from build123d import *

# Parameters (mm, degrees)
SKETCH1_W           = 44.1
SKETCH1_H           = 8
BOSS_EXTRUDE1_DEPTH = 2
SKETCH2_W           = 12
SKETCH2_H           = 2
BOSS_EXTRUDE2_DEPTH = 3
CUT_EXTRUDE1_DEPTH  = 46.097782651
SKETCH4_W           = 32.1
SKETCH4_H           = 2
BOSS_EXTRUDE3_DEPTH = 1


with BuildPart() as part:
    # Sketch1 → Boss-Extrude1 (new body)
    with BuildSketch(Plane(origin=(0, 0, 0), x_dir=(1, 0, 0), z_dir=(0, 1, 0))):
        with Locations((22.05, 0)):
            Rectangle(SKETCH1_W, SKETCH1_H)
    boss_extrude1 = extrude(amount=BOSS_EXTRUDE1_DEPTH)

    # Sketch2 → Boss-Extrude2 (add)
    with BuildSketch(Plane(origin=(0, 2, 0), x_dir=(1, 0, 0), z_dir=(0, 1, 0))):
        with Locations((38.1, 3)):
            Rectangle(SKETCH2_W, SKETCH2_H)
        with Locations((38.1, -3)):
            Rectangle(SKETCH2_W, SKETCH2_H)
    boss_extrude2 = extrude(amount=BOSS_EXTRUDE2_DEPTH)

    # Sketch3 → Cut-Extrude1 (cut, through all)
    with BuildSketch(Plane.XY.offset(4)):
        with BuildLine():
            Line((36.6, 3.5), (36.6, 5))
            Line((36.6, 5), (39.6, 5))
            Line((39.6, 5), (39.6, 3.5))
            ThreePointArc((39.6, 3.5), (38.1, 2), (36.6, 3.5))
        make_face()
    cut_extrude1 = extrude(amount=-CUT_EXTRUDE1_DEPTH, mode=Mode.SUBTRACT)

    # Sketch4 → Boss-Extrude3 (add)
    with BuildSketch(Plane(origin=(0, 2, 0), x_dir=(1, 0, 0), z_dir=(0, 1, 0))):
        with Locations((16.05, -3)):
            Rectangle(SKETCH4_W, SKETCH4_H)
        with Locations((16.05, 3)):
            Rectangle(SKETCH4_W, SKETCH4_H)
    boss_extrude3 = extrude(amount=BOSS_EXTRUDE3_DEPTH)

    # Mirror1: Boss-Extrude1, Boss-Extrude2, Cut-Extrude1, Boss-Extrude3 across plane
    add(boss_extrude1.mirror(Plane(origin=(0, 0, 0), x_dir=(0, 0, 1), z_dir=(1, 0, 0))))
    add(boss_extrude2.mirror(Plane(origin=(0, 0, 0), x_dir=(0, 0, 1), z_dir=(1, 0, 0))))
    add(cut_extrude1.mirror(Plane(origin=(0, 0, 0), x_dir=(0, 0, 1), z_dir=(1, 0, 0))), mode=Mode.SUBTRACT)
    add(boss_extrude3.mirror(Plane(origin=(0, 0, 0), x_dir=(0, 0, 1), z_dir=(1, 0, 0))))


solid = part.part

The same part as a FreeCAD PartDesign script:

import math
import FreeCAD as App
import Part
import Sketcher
from FreeCAD import Vector
Q = App.Units.Quantity

doc = App.newDocument("Part")
body = doc.addObject("PartDesign::Body", "Body")

# Sketch on XZ plane
sketch1 = body.newObject("Sketcher::SketchObject", "Sketch")
sketch1.AttachmentSupport = (doc.getObject("XZ_Plane"), [""])
sketch1.MapMode = "FlatFace"
sketch1.addGeometry([
    Part.LineSegment(Vector(0, -4, 0), Vector(0, 4, 0)),
    Part.LineSegment(Vector(0, 4, 0), Vector(44.1, 4, 0)),
    Part.LineSegment(Vector(44.1, 4, 0), Vector(44.1, -4, 0)),
    Part.LineSegment(Vector(44.1, -4, 0), Vector(0, -4, 0)),
], False)
sketch1.addConstraint([
    Sketcher.Constraint("Coincident", 0, 2, 1, 1),
    Sketcher.Constraint("Coincident", 1, 2, 2, 1),
    Sketcher.Constraint("Coincident", 2, 2, 3, 1),
    Sketcher.Constraint("Coincident", 3, 2, 0, 1),
    Sketcher.Constraint("Vertical", 0),
    Sketcher.Constraint("Horizontal", 1),
    Sketcher.Constraint("Vertical", 2),
    Sketcher.Constraint("Horizontal", 3),
    Sketcher.Constraint("Symmetric", 0, 2, 3, 2, -1, 1),
    Sketcher.Constraint("DistanceY", 0, 1, 0, 2, Q("8 mm")),
    Sketcher.Constraint("DistanceX", 1, 1, 1, 2, Q("44.1 mm")),
])
pad1 = body.newObject("PartDesign::Pad", "Pad")
pad1.Profile = sketch1
pad1.Length = 2
pad1.Reversed = True

# Sketch on XZ plane
sketch2 = body.newObject("Sketcher::SketchObject", "Sketch001")
sketch2.AttachmentSupport = (doc.getObject("XZ_Plane"), [""])
sketch2.MapMode = "FlatFace"
sketch2.AttachmentOffset = App.Placement(Vector(0, 0, -2), App.Rotation())
sketch2.addGeometry([
    Part.LineSegment(Vector(32.1, -4, 0), Vector(32.1, -2, 0)),  # 0
    Part.LineSegment(Vector(32.1, -2, 0), Vector(44.1, -2, 0)),  # 1
    Part.LineSegment(Vector(44.1, -2, 0), Vector(44.1, -4, 0)),  # 2
    Part.LineSegment(Vector(44.1, -4, 0), Vector(32.1, -4, 0)),  # 3
    Part.LineSegment(Vector(32.1, 2, 0), Vector(32.1, 4, 0)),  # 4
    Part.LineSegment(Vector(32.1, 4, 0), Vector(44.1, 4, 0)),  # 5
    Part.LineSegment(Vector(44.1, 4, 0), Vector(44.1, 2, 0)),  # 6
    Part.LineSegment(Vector(44.1, 2, 0), Vector(32.1, 2, 0)),  # 7
], False)
sketch2.addConstraint([
    Sketcher.Constraint("Coincident", 0, 2, 1, 1),
    Sketcher.Constraint("Coincident", 1, 2, 2, 1),
    Sketcher.Constraint("Coincident", 2, 2, 3, 1),
    Sketcher.Constraint("Coincident", 3, 2, 0, 1),
    Sketcher.Constraint("Coincident", 4, 2, 5, 1),
    Sketcher.Constraint("Coincident", 5, 2, 6, 1),
    Sketcher.Constraint("Coincident", 6, 2, 7, 1),
    Sketcher.Constraint("Coincident", 7, 2, 4, 1),
    Sketcher.Constraint("Vertical", 0),
    Sketcher.Constraint("Horizontal", 1),
    Sketcher.Constraint("Vertical", 2),
    Sketcher.Constraint("Horizontal", 3),
    Sketcher.Constraint("Vertical", 4),
    Sketcher.Constraint("Horizontal", 5),
    Sketcher.Constraint("Vertical", 6),
    Sketcher.Constraint("Horizontal", 7),
    Sketcher.Constraint("Symmetric", 3, 2, 4, 2, -1),
    Sketcher.Constraint("Symmetric", 1, 2, 6, 2, -1),
    Sketcher.Constraint("DistanceX", 1, 1, 1, 2, Q("12 mm")),
    Sketcher.Constraint("DistanceY", 0, 1, 0, 2, Q("2 mm")),
    Sketcher.Constraint("DistanceY", 0, 2, -1, 1, Q("2 mm")),
    Sketcher.Constraint("DistanceX", -1, 1, 0, 2, Q("32.1 mm")),
])
pad2 = body.newObject("PartDesign::Pad", "Pad001")
pad2.Profile = sketch2
pad2.Length = 3
pad2.Reversed = True

# Sketch on XY plane
sketch3 = body.newObject("Sketcher::SketchObject", "Sketch002")
sketch3.AttachmentSupport = (doc.getObject("XY_Plane"), [""])
sketch3.MapMode = "FlatFace"
sketch3.AttachmentOffset = App.Placement(Vector(0, 0, 4), App.Rotation())
sketch3.addGeometry([
    Part.LineSegment(Vector(36.6, 5, 0), Vector(36.6, 3.5, 0)),
    Part.ArcOfCircle(Part.Circle(Vector(38.1, 3.5, 0), Vector(0, 0, 1), 1.5), math.radians(180), math.radians(360)),
    Part.LineSegment(Vector(39.6, 3.5, 0), Vector(39.6, 5, 0)),
    Part.LineSegment(Vector(39.6, 5, 0), Vector(36.6, 5, 0)),
], False)
sketch3.addConstraint([
    Sketcher.Constraint("Tangent", 0, 2, 1, 1),
    Sketcher.Constraint("Tangent", 1, 2, 2, 1),
    Sketcher.Constraint("Coincident", 2, 2, 3, 1),
    Sketcher.Constraint("Coincident", 3, 2, 0, 1),
    Sketcher.Constraint("Vertical", 0),
    Sketcher.Constraint("Vertical", 2),
    Sketcher.Constraint("Horizontal", 3),
    Sketcher.Constraint("Radius", 1, Q("1.5 mm")),
    Sketcher.Constraint("DistanceY", 0, 2, 0, 1, Q("1.5 mm")),
    Sketcher.Constraint("DistanceY", -1, 1, 2, 2, Q("5 mm")),
    Sketcher.Constraint("DistanceX", -1, 1, 1, 3, Q("38.1 mm")),
])
pocket1 = body.newObject("PartDesign::Pocket", "Pocket")
pocket1.Profile = sketch3
pocket1.Type = "ThroughAll"

# Sketch on XZ plane
sketch4 = body.newObject("Sketcher::SketchObject", "Sketch003")
sketch4.AttachmentSupport = (doc.getObject("XZ_Plane"), [""])
sketch4.MapMode = "FlatFace"
sketch4.AttachmentOffset = App.Placement(Vector(0, 0, -2), App.Rotation())
sketch4.addGeometry([
    Part.LineSegment(Vector(0, 2, 0), Vector(0, 4, 0)),  # 0
    Part.LineSegment(Vector(0, 4, 0), Vector(32.1, 4, 0)),  # 1
    Part.LineSegment(Vector(32.1, 4, 0), Vector(32.1, 2, 0)),  # 2
    Part.LineSegment(Vector(32.1, 2, 0), Vector(0, 2, 0)),  # 3
    Part.LineSegment(Vector(0, -4, 0), Vector(0, -2, 0)),  # 4
    Part.LineSegment(Vector(0, -2, 0), Vector(32.1, -2, 0)),  # 5
    Part.LineSegment(Vector(32.1, -2, 0), Vector(32.1, -4, 0)),  # 6
    Part.LineSegment(Vector(32.1, -4, 0), Vector(0, -4, 0)),  # 7
], False)
sketch4.addConstraint([
    Sketcher.Constraint("Coincident", 0, 2, 1, 1),
    Sketcher.Constraint("Coincident", 1, 2, 2, 1),
    Sketcher.Constraint("Coincident", 2, 2, 3, 1),
    Sketcher.Constraint("Coincident", 3, 2, 0, 1),
    Sketcher.Constraint("Coincident", 4, 2, 5, 1),
    Sketcher.Constraint("Coincident", 5, 2, 6, 1),
    Sketcher.Constraint("Coincident", 6, 2, 7, 1),
    Sketcher.Constraint("Coincident", 7, 2, 4, 1),
    Sketcher.Constraint("Vertical", 0),
    Sketcher.Constraint("Horizontal", 1),
    Sketcher.Constraint("Vertical", 2),
    Sketcher.Constraint("Horizontal", 3),
    Sketcher.Constraint("Vertical", 4),
    Sketcher.Constraint("Horizontal", 5),
    Sketcher.Constraint("Vertical", 6),
    Sketcher.Constraint("Horizontal", 7),
    Sketcher.Constraint("Symmetric", 3, 2, 4, 2, -1, 1),
    Sketcher.Constraint("Symmetric", 1, 2, 6, 2, -1),
    Sketcher.Constraint("PointOnObject", 0, 2, -2),
    Sketcher.Constraint("DistanceY", 0, 1, 0, 2, Q("2 mm")),
    Sketcher.Constraint("DistanceX", 1, 1, 1, 2, Q("32.1 mm")),
    Sketcher.Constraint("DistanceY", -1, 1, 0, 2, Q("4 mm")),
])
pad3 = body.newObject("PartDesign::Pad", "Pad002")
pad3.Profile = sketch4
pad3.Length = 1
pad3.Reversed = True
doc.recompute()

mirrored = body.newObject("PartDesign::Mirrored", "Mirrored")
mirrored.Originals = [pad1, pad2, pocket1, pad3]
mirrored.MirrorPlane = (doc.getObject("YZ_Plane"), [""])
body.Tip = mirrored

doc.recompute()
